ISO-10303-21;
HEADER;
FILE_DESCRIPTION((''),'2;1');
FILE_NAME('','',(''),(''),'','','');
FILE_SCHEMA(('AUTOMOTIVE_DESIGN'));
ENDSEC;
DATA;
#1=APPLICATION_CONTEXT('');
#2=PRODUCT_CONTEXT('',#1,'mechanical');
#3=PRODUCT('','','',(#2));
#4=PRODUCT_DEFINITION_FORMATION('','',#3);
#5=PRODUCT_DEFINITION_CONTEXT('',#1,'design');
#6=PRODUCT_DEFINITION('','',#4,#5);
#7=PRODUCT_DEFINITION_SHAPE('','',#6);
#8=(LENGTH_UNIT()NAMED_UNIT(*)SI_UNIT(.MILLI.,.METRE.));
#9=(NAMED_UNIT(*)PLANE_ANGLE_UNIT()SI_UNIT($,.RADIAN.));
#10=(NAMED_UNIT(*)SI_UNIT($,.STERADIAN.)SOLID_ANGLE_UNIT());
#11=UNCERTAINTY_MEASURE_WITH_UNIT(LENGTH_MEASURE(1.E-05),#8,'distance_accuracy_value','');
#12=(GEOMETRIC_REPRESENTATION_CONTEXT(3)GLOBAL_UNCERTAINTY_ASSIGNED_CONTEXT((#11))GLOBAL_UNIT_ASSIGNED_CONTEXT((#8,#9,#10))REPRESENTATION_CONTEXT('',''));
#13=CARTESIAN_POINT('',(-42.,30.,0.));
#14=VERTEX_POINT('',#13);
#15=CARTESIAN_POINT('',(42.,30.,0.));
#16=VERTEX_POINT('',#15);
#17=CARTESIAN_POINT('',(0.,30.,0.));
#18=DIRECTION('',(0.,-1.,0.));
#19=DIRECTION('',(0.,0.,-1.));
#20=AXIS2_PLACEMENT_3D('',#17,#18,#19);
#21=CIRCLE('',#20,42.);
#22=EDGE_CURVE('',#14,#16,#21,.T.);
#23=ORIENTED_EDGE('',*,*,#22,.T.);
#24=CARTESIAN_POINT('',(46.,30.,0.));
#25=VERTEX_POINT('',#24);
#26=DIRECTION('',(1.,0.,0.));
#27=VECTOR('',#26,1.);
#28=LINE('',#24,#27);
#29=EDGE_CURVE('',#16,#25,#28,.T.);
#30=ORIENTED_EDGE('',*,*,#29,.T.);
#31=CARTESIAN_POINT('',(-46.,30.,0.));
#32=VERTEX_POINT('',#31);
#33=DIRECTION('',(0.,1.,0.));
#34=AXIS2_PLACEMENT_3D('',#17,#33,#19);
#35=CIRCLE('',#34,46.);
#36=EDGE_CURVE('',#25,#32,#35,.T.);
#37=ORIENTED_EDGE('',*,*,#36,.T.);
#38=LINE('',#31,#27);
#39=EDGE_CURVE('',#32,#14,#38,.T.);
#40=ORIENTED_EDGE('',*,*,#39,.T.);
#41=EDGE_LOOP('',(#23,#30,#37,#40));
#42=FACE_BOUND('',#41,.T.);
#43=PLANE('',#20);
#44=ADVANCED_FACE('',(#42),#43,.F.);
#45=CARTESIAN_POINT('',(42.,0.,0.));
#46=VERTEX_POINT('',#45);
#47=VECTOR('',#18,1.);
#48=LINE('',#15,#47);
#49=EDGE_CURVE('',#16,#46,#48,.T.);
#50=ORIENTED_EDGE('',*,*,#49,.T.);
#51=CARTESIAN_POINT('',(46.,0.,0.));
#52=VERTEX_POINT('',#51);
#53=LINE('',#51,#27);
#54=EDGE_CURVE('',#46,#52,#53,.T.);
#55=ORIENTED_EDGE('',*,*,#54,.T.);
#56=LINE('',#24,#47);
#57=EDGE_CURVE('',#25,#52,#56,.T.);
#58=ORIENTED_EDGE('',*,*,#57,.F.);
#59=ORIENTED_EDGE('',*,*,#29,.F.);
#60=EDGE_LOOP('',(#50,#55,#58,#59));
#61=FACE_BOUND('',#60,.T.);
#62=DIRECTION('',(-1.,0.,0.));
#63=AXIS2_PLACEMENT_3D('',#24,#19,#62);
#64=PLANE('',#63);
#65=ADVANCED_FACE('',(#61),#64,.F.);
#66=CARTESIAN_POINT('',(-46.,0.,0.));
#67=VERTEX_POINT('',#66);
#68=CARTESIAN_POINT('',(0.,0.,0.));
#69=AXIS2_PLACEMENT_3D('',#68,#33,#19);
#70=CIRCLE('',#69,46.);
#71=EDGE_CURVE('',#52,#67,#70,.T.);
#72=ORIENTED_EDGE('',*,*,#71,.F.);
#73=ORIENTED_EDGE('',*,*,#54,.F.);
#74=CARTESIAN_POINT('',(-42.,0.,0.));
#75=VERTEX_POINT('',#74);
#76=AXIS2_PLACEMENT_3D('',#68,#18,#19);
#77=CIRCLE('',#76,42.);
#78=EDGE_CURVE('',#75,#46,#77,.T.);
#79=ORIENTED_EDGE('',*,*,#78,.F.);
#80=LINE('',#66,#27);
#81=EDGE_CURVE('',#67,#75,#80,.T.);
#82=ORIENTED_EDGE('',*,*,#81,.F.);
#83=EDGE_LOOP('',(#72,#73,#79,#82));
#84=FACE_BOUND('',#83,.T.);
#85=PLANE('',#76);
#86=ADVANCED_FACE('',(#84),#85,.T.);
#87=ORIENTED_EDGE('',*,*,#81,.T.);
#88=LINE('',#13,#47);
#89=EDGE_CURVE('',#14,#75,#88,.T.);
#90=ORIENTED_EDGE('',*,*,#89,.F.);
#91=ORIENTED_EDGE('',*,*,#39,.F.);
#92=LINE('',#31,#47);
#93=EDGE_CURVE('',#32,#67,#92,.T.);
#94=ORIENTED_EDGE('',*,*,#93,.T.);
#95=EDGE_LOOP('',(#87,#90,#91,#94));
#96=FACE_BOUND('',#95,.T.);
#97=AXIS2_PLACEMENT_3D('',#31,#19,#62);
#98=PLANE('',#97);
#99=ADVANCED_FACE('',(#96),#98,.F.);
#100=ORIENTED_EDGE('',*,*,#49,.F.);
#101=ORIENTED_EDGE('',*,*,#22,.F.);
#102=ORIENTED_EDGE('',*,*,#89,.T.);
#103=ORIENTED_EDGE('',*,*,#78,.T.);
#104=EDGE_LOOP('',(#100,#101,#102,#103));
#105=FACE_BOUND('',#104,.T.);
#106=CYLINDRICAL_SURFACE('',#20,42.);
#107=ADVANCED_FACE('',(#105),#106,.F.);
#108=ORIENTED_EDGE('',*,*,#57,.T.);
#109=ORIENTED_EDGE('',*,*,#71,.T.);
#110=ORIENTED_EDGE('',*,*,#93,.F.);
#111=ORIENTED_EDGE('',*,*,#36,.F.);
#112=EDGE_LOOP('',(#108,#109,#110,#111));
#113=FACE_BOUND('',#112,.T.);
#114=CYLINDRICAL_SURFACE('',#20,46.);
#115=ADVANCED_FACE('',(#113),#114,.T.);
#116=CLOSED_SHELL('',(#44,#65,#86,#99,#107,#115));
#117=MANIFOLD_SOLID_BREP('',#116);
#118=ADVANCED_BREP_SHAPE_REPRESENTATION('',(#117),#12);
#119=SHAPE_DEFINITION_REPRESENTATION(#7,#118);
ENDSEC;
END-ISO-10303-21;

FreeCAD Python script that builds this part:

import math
import FreeCAD as App
import Part
import Sketcher
Q = App.Units.Quantity

doc = App.newDocument("Part")
body = doc.addObject("PartDesign::Body", "Body")

# Sketch on XZ plane
sketch1 = body.newObject("Sketcher::SketchObject", "Sketch")
sketch1.AttachmentSupport = (doc.getObject("XZ_Plane"), [""])
sketch1.MapMode = "FlatFace"
sketch1.addGeometry(Part.LineSegment(App.Vector(-46, 0, 0), App.Vector(-42, 0, 0)), False)
sketch1.addGeometry(Part.ArcOfCircle(Part.Circle(App.Vector(0, 0, 0), App.Vector(0, 0, 1), 42), math.radians(180), math.radians(360)), False)
sketch1.addGeometry(Part.LineSegment(App.Vector(42, 0, 0), App.Vector(46, 0, 0)), False)
sketch1.addGeometry(Part.ArcOfCircle(Part.Circle(App.Vector(0, 0, 0), App.Vector(0, 0, 1), 46), math.radians(180), math.radians(360)), False)
sketch1.addConstraint(Sketcher.Constraint("Coincident", 0, 2, 1, 1))
sketch1.addConstraint(Sketcher.Constraint("Coincident", 1, 2, 2, 1))
sketch1.addConstraint(Sketcher.Constraint("Coincident", 2, 2, 3, 2))
sketch1.addConstraint(Sketcher.Constraint("Coincident", 3, 1, 0, 1))
sketch1.addConstraint(Sketcher.Constraint("Horizontal", 0))
sketch1.addConstraint(Sketcher.Constraint("Horizontal", 2))
sketch1.addConstraint(Sketcher.Constraint("Coincident", 1, 3, -1, 1))
sketch1.addConstraint(Sketcher.Constraint("Coincident", 3, 3, -1, 1))
sketch1.addConstraint(Sketcher.Constraint("PointOnObject", 0, 2, -1))
sketch1.addConstraint(Sketcher.Constraint("PointOnObject", 1, 2, -1))
sketch1.addConstraint(Sketcher.Constraint("Radius", 1, Q("42 mm")))
sketch1.addConstraint(Sketcher.Constraint("Radius", 3, Q("46 mm")))
pad1 = body.newObject("PartDesign::Pad", "Pad")
pad1.Profile = sketch1
pad1.Length = 30
pad1.Reversed = True

doc.recompute()
